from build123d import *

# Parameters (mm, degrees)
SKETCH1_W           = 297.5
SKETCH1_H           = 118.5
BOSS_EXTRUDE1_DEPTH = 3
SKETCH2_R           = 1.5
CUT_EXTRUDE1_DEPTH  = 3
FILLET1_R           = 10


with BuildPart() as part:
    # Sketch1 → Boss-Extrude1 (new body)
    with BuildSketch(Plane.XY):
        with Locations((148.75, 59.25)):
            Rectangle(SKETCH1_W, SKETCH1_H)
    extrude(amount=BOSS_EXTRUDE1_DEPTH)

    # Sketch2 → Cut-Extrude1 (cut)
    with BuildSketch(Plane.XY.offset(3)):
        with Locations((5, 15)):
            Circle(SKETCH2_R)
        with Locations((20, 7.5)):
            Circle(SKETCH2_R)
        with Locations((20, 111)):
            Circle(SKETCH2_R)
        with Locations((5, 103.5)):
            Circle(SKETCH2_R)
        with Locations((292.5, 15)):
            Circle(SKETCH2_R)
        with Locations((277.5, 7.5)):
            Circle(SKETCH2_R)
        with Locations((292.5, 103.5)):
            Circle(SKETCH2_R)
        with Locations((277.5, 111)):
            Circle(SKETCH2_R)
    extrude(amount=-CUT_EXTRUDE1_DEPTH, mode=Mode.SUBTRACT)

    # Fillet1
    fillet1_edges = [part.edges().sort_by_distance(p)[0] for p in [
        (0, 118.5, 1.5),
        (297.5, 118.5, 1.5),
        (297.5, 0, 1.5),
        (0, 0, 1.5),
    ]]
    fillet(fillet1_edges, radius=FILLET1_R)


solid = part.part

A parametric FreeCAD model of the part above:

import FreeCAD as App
import Part
import Sketcher
from FreeCAD import Vector


def edges_at(feature, points):
    """Names of the edges that pass closest to the given points."""
    edges = feature.Shape.Edges
    near = lambda p: min(range(len(edges)), key=lambda i: edges[i].distToShape(Part.Vertex(*p))[0])
    return sorted({f"Edge{near(p) + 1}" for p in points})

doc = App.newDocument("Part")
body = doc.addObject("PartDesign::Body", "Body")

sketch1 = body.newObject("Sketcher::SketchObject", "Sketch")
sketch1.AttachmentSupport = (doc.getObject("XY_Plane"), [""])
sketch1.MapMode = "FlatFace"
sketch1.addGeometry([
    Part.LineSegment(Vector(0, 118, 0), Vector(0, 0, 0)),
    Part.LineSegment(Vector(0, 0, 0), Vector(298, 0, 0)),
    Part.LineSegment(Vector(298, 0, 0), Vector(298, 118, 0)),
    Part.LineSegment(Vector(298, 118, 0), Vector(0, 118, 0)),
], False)
sketch1.addConstraint([
    Sketcher.Constraint("Coincident", 0, 2, 1, 1),
    Sketcher.Constraint("Coincident", 1, 2, 2, 1),
    Sketcher.Constraint("Coincident", 2, 2, 3, 1),
    Sketcher.Constraint("Coincident", 3, 2, 0, 1),
    Sketcher.Constraint("Vertical", 0),
    Sketcher.Constraint("Horizontal", 1),
    Sketcher.Constraint("Vertical", 2),
    Sketcher.Constraint("Horizontal", 3),
    Sketcher.Constraint("Coincident", 0, 2, -1, 1),
    Sketcher.Constraint("DistanceX", 1, 1, 1, 2, 297.5),
    Sketcher.Constraint("DistanceY", 0, 2, 0, 1, 118.5),
])
pad1 = body.newObject("PartDesign::Pad", "Pad")
pad1.Profile = sketch1
pad1.Length = 3

sketch2 = body.newObject("Sketcher::SketchObject", "Sketch001")
sketch2.AttachmentSupport = (doc.getObject("XY_Plane"), [""])
sketch2.MapMode = "FlatFace"
sketch2.AttachmentOffset = App.Placement(Vector(0, 0, 3), App.Rotation())
sketch2.addGeometry([
    Part.Circle(Vector(5, 15, 0), Vector(0, 0, 1), 1.5),
    Part.Circle(Vector(20, 7.5, 0), Vector(0, 0, 1), 1.5),
    Part.Circle(Vector(20, 111, 0), Vector(0, 0, 1), 1.5),
    Part.Circle(Vector(5, 103.5, 0), Vector(0, 0, 1), 1.5),
    Part.Circle(Vector(292.5, 15, 0), Vector(0, 0, 1), 1.5),
    Part.Circle(Vector(277.5, 7.5, 0), Vector(0, 0, 1), 1.5),
    Part.Circle(Vector(292.5, 103.5, 0), Vector(0, 0, 1), 1.5),
    Part.Circle(Vector(277.5, 111, 0), Vector(0, 0, 1), 1.5),
], False)
sketch2.addConstraint([
    Sketcher.Constraint("Equal", 0, 1),
    Sketcher.Constraint("Equal", 1, 2),
    Sketcher.Constraint("Equal", 2, 3),
    Sketcher.Constraint("Equal", 3, 4),
    Sketcher.Constraint("Equal", 4, 5),
    Sketcher.Constraint("Equal", 5, 6),
    Sketcher.Constraint("Equal", 6, 7),
    Sketcher.Constraint("Horizontal", 0, 3, 4, 3),
    Sketcher.Constraint("Horizontal", 1, 3, 5, 3),
    Sketcher.Constraint("Horizontal", 3, 3, 6, 3),
    Sketcher.Constraint("Horizontal", 2, 3, 7, 3),
    Sketcher.Constraint("Vertical", 1, 3, 2, 3),
    Sketcher.Constraint("Vertical", 0, 3, 3, 3),
    Sketcher.Constraint("Vertical", 4, 3, 6, 3),
    Sketcher.Constraint("Vertical", 5, 3, 7, 3),
    Sketcher.Constraint("Diameter", 0, 3.0),
    Sketcher.Constraint("DistanceX", -1, 1, 0, 3, 5.0),
    Sketcher.Constraint("DistanceY", -1, 1, 0, 3, 15.0),
    Sketcher.Constraint("DistanceX", -1, 1, 1, 3, 20.0),
    Sketcher.Constraint("DistanceY", -1, 1, 2, 3, 111.0),
    Sketcher.Constraint("DistanceY", 1, 3, 3, 3, 96.0),
    Sketcher.Constraint("DistanceX", 5, 3, 4, 3, 15.0),
    Sketcher.Constraint("DistanceY", -1, 1, 1, 3, 7.5),
    Sketcher.Constraint("DistanceX", -1, 1, 4, 3, 292.5),
])
pocket1 = body.newObject("PartDesign::Pocket", "Pocket")
pocket1.Profile = sketch2
pocket1.Length = 3
doc.recompute()

fillet = body.newObject("PartDesign::Fillet", "Fillet")
fillet.Base = (pocket1, edges_at(pocket1, [
    (0, 118.5, 1.5),
    (297.5, 118.5, 1.5),
    (297.5, 0, 1.5),
    (0, 0, 1.5),
]))
fillet.Radius = 10

doc.recompute()
